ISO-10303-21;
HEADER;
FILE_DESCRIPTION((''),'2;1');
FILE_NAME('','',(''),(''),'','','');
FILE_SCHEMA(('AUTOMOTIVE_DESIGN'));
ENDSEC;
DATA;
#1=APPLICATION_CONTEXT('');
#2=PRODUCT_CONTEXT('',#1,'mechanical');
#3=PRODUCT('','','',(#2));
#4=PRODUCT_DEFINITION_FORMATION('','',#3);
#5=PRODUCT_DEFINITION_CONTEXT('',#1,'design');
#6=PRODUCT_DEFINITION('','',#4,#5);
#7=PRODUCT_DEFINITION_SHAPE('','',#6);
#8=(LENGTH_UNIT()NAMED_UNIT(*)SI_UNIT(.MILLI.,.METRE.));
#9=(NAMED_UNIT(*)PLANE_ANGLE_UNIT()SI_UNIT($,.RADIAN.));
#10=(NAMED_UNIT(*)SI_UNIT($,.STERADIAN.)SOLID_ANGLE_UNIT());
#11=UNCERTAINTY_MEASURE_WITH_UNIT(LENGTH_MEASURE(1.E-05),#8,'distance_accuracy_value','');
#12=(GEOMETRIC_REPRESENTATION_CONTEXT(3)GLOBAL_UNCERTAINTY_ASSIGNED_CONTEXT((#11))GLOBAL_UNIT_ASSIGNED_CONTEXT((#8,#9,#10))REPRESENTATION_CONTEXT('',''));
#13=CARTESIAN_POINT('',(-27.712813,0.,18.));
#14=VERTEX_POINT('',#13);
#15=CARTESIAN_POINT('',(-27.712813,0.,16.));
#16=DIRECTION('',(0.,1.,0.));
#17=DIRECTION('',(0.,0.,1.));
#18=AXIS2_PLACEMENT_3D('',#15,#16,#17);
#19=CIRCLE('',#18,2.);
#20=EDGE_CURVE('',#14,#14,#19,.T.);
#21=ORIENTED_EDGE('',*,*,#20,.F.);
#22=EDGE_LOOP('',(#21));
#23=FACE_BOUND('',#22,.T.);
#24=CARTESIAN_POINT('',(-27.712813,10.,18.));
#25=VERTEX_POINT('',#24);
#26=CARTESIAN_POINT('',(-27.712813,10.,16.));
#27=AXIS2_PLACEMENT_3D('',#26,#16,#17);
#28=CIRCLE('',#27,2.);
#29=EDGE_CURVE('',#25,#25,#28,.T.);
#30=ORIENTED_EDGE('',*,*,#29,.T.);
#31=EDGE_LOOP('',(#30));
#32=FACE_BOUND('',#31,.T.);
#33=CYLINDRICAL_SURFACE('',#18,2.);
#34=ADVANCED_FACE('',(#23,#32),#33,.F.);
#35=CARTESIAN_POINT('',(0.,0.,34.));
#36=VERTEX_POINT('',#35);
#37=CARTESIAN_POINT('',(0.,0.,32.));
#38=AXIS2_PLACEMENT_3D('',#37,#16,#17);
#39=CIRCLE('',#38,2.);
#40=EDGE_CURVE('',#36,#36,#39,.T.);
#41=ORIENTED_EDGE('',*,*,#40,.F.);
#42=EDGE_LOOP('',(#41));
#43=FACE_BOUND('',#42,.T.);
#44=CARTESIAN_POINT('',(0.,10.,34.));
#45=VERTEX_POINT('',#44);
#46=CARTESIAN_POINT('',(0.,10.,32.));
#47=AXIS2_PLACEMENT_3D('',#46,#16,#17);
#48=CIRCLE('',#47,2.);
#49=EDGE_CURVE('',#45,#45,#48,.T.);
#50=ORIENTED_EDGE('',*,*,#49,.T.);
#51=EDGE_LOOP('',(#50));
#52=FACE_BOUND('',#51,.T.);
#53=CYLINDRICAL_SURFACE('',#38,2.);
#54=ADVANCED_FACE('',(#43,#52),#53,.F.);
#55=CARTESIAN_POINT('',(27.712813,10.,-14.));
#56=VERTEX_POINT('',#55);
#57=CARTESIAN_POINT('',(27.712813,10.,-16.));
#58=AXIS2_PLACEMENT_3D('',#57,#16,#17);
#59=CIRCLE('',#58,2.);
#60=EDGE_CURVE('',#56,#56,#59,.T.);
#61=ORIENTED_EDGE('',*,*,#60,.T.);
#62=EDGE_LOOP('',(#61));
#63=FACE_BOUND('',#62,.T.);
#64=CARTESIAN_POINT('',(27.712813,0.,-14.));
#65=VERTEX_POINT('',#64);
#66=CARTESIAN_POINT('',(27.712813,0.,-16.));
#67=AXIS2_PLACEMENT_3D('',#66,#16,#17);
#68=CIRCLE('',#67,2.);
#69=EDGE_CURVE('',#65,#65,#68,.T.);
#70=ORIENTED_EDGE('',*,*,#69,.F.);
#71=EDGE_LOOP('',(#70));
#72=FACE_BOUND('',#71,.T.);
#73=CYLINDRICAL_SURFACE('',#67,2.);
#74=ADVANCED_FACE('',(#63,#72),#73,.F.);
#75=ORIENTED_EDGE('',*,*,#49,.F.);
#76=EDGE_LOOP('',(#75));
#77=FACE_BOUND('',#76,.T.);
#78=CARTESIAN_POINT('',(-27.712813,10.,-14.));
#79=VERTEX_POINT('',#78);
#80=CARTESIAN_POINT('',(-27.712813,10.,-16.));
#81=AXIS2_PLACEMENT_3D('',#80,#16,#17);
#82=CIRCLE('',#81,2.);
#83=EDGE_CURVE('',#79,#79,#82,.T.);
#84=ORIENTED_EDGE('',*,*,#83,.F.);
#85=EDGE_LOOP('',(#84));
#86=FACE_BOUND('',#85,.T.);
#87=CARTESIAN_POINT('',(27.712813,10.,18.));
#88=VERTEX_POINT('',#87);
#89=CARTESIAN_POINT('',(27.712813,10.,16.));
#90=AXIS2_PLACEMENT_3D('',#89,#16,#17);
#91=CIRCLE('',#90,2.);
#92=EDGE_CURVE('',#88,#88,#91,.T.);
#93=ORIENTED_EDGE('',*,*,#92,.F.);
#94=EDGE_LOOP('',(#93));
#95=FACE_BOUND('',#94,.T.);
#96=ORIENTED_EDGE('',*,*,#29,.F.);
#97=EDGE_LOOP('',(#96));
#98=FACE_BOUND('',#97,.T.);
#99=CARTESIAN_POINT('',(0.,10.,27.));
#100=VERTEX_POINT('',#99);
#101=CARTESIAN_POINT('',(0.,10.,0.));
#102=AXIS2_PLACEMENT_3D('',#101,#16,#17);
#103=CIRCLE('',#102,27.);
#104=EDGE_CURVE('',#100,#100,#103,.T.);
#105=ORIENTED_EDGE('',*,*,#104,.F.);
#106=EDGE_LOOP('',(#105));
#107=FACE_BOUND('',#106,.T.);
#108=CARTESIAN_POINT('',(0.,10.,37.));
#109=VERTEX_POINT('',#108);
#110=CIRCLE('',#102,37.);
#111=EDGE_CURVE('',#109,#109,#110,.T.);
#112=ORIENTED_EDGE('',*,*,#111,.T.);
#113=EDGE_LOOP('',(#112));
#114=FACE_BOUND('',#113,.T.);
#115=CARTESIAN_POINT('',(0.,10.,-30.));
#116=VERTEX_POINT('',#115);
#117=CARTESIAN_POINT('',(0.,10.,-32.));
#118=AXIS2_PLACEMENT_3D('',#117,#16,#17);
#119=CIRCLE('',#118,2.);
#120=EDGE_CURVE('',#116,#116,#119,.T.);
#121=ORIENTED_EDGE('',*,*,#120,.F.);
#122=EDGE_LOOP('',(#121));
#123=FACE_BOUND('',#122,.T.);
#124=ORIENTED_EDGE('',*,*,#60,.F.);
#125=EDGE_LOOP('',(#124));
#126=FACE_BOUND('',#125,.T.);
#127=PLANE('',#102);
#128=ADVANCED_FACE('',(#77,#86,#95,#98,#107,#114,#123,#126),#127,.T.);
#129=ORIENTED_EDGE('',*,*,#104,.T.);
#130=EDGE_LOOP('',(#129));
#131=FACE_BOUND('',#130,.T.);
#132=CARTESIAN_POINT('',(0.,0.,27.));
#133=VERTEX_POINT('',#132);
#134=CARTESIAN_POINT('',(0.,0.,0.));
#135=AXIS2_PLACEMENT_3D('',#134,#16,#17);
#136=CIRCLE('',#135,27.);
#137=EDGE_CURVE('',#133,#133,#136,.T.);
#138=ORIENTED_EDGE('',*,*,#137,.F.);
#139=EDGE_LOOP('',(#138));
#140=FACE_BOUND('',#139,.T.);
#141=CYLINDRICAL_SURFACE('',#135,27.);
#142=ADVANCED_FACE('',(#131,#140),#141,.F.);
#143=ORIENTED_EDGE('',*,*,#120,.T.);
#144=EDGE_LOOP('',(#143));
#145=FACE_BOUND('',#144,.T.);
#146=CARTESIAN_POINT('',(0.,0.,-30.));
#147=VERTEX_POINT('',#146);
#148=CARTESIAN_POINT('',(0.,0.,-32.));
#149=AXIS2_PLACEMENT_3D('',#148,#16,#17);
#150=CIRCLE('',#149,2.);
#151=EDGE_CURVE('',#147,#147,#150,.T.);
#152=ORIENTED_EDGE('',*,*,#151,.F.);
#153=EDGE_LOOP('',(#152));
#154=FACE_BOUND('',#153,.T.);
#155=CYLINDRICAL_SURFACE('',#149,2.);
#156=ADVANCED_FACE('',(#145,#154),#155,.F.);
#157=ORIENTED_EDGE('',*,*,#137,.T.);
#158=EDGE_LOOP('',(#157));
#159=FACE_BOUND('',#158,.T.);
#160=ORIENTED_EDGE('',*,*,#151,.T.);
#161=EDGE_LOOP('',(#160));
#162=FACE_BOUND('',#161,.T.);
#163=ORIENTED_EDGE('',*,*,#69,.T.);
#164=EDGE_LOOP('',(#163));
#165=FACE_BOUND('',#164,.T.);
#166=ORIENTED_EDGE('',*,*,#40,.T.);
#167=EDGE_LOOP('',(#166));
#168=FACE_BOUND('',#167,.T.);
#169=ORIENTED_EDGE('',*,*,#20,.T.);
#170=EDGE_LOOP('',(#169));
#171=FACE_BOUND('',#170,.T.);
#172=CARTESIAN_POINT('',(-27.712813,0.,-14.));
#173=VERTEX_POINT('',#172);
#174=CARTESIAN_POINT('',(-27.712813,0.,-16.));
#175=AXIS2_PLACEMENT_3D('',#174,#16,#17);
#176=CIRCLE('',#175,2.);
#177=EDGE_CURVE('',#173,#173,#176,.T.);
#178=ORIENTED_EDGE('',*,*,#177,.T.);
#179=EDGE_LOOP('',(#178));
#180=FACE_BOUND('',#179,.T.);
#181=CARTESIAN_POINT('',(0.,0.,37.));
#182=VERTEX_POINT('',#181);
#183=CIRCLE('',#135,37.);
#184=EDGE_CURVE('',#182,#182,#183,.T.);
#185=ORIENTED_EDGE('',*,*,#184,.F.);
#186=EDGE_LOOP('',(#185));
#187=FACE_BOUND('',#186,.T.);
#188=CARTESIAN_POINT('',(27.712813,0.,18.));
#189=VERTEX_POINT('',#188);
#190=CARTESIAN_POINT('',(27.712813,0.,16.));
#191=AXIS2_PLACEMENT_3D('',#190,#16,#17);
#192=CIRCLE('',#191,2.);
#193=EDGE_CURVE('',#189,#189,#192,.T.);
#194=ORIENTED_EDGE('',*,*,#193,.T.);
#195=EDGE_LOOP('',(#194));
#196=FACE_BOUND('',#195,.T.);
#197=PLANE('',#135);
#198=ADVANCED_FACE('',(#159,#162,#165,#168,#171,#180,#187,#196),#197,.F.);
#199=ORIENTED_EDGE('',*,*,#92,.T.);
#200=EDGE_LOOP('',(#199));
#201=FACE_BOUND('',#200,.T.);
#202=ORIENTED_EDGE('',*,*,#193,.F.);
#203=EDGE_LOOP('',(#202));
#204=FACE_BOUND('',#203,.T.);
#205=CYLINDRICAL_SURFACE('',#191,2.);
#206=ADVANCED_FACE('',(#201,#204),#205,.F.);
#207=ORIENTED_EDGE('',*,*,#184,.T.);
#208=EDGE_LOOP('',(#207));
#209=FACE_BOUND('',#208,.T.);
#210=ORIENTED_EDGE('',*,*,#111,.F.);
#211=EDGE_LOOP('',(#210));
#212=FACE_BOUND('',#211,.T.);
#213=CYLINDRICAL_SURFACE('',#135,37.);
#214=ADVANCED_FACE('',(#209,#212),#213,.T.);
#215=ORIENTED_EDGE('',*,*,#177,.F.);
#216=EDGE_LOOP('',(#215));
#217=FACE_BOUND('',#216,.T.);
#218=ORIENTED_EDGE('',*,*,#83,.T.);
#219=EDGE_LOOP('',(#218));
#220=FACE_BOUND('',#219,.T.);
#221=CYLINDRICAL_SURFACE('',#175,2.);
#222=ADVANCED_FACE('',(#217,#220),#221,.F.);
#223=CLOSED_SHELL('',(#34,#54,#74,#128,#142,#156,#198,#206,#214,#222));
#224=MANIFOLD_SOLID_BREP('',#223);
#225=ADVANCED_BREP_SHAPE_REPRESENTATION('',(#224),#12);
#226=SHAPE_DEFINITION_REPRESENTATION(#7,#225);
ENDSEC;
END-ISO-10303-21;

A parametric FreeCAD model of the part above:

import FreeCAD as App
import Part
import Sketcher
from FreeCAD import Vector
Q = App.Units.Quantity

doc = App.newDocument("Part")
body = doc.addObject("PartDesign::Body", "Body")

sketch1 = body.newObject("Sketcher::SketchObject", "Sketch")
sketch1.AttachmentSupport = (doc.getObject("XZ_Plane"), [""])
sketch1.MapMode = "FlatFace"
sketch1.addGeometry(Part.Circle(Vector(0, 0, 0), Vector(0, 0, 1), 45), False)
sketch1.addConstraint(Sketcher.Constraint("Coincident", 0, 3, -1, 1))
sketch1.addConstraint(Sketcher.Constraint("Diameter", 0, Q("90 mm")))
pad1 = body.newObject("PartDesign::Pad", "Pad")
pad1.Profile = sketch1
pad1.Length = 10
pad1.Reversed = True

sketch2 = body.newObject("Sketcher::SketchObject", "Sketch001")
sketch2.AttachmentSupport = (doc.getObject("XZ_Plane"), [""])
sketch2.MapMode = "FlatFace"
sketch2.AttachmentOffset = App.Placement(Vector(0, 0, -10), App.Rotation())
sketch2.addGeometry(Part.Circle(Vector(0, 0, 0), Vector(0, 0, 1), 45), False)
sketch2.addGeometry(Part.Circle(Vector(0, 0, 0), Vector(0, 0, 1), 37), False)
sketch2.addGeometry(Part.Circle(Vector(0, 0, 0), Vector(0, 0, 1), 27), False)
sketch2.addConstraint(Sketcher.Constraint("Coincident", 0, 3, -1, 1))
sketch2.addConstraint(Sketcher.Constraint("Coincident", 1, 3, -1, 1))
sketch2.addConstraint(Sketcher.Constraint("Coincident", 2, 3, -1, 1))
sketch2.addConstraint(Sketcher.Constraint("Diameter", 0, Q("90 mm")))
sketch2.addConstraint(Sketcher.Constraint("Diameter", 1, Q("74 mm")))
sketch2.addConstraint(Sketcher.Constraint("Diameter", 2, Q("54 mm")))
pocket1 = body.newObject("PartDesign::Pocket", "Pocket")
pocket1.Profile = sketch2
pocket1.Length = 10
pocket1.Reversed = True

sketch3 = body.newObject("Sketcher::SketchObject", "Sketch002")
sketch3.AttachmentSupport = (doc.getObject("XZ_Plane"), [""])
sketch3.MapMode = "FlatFace"
sketch3.AttachmentOffset = App.Placement(Vector(0, 0, -10), App.Rotation())
sketch3.addGeometry(Part.Circle(Vector(0, -32, 0), Vector(0, 0, 1), 2), False)
sketch3.addGeometry(Part.Circle(Vector(27.7, -16, 0), Vector(0, 0, 1), 2), False)
sketch3.addGeometry(Part.Circle(Vector(27.7, 16, 0), Vector(0, 0, 1), 2), False)
sketch3.addGeometry(Part.Circle(Vector(0, 32, 0), Vector(0, 0, 1), 2), False)
sketch3.addGeometry(Part.Circle(Vector(-27.7, 16, 0), Vector(0, 0, 1), 2), False)
sketch3.addGeometry(Part.Circle(Vector(-27.7, -16, 0), Vector(0, 0, 1), 2), False)
sketch3.addConstraint(Sketcher.Constraint("Equal", 0, 1))
sketch3.addConstraint(Sketcher.Constraint("Equal", 1, 2))
sketch3.addConstraint(Sketcher.Constraint("Equal", 2, 3))
sketch3.addConstraint(Sketcher.Constraint("Equal", 3, 4))
sketch3.addConstraint(Sketcher.Constraint("Equal", 4, 5))
sketch3.addConstraint(Sketcher.Constraint("Symmetric", 0, 3, 3, 3, -1, 1))
sketch3.addConstraint(Sketcher.Constraint("Symmetric", 1, 3, 4, 3, -1, 1))
sketch3.addConstraint(Sketcher.Constraint("Symmetric", 2, 3, 5, 3, -1, 1))
sketch3.addConstraint(Sketcher.Constraint("Symmetric", 2, 3, 4, 3, -2))
sketch3.addConstraint(Sketcher.Constraint("PointOnObject", 0, 3, -2))
sketch3.addConstraint(Sketcher.Constraint("Diameter", 0, Q("4 mm")))
sketch3.addConstraint(Sketcher.Constraint("DistanceY", 0, 3, -1, 1, Q("32 mm")))
sketch3.addConstraint(Sketcher.Constraint("DistanceY", 1, 3, -1, 1, Q("16 mm")))
sketch3.addConstraint(Sketcher.Constraint("DistanceX", -1, 1, 1, 3, Q("27.712813 mm")))
pocket2 = body.newObject("PartDesign::Pocket", "Pocket001")
pocket2.Profile = sketch3
pocket2.Length = 10
pocket2.Reversed = True

doc.recompute()
